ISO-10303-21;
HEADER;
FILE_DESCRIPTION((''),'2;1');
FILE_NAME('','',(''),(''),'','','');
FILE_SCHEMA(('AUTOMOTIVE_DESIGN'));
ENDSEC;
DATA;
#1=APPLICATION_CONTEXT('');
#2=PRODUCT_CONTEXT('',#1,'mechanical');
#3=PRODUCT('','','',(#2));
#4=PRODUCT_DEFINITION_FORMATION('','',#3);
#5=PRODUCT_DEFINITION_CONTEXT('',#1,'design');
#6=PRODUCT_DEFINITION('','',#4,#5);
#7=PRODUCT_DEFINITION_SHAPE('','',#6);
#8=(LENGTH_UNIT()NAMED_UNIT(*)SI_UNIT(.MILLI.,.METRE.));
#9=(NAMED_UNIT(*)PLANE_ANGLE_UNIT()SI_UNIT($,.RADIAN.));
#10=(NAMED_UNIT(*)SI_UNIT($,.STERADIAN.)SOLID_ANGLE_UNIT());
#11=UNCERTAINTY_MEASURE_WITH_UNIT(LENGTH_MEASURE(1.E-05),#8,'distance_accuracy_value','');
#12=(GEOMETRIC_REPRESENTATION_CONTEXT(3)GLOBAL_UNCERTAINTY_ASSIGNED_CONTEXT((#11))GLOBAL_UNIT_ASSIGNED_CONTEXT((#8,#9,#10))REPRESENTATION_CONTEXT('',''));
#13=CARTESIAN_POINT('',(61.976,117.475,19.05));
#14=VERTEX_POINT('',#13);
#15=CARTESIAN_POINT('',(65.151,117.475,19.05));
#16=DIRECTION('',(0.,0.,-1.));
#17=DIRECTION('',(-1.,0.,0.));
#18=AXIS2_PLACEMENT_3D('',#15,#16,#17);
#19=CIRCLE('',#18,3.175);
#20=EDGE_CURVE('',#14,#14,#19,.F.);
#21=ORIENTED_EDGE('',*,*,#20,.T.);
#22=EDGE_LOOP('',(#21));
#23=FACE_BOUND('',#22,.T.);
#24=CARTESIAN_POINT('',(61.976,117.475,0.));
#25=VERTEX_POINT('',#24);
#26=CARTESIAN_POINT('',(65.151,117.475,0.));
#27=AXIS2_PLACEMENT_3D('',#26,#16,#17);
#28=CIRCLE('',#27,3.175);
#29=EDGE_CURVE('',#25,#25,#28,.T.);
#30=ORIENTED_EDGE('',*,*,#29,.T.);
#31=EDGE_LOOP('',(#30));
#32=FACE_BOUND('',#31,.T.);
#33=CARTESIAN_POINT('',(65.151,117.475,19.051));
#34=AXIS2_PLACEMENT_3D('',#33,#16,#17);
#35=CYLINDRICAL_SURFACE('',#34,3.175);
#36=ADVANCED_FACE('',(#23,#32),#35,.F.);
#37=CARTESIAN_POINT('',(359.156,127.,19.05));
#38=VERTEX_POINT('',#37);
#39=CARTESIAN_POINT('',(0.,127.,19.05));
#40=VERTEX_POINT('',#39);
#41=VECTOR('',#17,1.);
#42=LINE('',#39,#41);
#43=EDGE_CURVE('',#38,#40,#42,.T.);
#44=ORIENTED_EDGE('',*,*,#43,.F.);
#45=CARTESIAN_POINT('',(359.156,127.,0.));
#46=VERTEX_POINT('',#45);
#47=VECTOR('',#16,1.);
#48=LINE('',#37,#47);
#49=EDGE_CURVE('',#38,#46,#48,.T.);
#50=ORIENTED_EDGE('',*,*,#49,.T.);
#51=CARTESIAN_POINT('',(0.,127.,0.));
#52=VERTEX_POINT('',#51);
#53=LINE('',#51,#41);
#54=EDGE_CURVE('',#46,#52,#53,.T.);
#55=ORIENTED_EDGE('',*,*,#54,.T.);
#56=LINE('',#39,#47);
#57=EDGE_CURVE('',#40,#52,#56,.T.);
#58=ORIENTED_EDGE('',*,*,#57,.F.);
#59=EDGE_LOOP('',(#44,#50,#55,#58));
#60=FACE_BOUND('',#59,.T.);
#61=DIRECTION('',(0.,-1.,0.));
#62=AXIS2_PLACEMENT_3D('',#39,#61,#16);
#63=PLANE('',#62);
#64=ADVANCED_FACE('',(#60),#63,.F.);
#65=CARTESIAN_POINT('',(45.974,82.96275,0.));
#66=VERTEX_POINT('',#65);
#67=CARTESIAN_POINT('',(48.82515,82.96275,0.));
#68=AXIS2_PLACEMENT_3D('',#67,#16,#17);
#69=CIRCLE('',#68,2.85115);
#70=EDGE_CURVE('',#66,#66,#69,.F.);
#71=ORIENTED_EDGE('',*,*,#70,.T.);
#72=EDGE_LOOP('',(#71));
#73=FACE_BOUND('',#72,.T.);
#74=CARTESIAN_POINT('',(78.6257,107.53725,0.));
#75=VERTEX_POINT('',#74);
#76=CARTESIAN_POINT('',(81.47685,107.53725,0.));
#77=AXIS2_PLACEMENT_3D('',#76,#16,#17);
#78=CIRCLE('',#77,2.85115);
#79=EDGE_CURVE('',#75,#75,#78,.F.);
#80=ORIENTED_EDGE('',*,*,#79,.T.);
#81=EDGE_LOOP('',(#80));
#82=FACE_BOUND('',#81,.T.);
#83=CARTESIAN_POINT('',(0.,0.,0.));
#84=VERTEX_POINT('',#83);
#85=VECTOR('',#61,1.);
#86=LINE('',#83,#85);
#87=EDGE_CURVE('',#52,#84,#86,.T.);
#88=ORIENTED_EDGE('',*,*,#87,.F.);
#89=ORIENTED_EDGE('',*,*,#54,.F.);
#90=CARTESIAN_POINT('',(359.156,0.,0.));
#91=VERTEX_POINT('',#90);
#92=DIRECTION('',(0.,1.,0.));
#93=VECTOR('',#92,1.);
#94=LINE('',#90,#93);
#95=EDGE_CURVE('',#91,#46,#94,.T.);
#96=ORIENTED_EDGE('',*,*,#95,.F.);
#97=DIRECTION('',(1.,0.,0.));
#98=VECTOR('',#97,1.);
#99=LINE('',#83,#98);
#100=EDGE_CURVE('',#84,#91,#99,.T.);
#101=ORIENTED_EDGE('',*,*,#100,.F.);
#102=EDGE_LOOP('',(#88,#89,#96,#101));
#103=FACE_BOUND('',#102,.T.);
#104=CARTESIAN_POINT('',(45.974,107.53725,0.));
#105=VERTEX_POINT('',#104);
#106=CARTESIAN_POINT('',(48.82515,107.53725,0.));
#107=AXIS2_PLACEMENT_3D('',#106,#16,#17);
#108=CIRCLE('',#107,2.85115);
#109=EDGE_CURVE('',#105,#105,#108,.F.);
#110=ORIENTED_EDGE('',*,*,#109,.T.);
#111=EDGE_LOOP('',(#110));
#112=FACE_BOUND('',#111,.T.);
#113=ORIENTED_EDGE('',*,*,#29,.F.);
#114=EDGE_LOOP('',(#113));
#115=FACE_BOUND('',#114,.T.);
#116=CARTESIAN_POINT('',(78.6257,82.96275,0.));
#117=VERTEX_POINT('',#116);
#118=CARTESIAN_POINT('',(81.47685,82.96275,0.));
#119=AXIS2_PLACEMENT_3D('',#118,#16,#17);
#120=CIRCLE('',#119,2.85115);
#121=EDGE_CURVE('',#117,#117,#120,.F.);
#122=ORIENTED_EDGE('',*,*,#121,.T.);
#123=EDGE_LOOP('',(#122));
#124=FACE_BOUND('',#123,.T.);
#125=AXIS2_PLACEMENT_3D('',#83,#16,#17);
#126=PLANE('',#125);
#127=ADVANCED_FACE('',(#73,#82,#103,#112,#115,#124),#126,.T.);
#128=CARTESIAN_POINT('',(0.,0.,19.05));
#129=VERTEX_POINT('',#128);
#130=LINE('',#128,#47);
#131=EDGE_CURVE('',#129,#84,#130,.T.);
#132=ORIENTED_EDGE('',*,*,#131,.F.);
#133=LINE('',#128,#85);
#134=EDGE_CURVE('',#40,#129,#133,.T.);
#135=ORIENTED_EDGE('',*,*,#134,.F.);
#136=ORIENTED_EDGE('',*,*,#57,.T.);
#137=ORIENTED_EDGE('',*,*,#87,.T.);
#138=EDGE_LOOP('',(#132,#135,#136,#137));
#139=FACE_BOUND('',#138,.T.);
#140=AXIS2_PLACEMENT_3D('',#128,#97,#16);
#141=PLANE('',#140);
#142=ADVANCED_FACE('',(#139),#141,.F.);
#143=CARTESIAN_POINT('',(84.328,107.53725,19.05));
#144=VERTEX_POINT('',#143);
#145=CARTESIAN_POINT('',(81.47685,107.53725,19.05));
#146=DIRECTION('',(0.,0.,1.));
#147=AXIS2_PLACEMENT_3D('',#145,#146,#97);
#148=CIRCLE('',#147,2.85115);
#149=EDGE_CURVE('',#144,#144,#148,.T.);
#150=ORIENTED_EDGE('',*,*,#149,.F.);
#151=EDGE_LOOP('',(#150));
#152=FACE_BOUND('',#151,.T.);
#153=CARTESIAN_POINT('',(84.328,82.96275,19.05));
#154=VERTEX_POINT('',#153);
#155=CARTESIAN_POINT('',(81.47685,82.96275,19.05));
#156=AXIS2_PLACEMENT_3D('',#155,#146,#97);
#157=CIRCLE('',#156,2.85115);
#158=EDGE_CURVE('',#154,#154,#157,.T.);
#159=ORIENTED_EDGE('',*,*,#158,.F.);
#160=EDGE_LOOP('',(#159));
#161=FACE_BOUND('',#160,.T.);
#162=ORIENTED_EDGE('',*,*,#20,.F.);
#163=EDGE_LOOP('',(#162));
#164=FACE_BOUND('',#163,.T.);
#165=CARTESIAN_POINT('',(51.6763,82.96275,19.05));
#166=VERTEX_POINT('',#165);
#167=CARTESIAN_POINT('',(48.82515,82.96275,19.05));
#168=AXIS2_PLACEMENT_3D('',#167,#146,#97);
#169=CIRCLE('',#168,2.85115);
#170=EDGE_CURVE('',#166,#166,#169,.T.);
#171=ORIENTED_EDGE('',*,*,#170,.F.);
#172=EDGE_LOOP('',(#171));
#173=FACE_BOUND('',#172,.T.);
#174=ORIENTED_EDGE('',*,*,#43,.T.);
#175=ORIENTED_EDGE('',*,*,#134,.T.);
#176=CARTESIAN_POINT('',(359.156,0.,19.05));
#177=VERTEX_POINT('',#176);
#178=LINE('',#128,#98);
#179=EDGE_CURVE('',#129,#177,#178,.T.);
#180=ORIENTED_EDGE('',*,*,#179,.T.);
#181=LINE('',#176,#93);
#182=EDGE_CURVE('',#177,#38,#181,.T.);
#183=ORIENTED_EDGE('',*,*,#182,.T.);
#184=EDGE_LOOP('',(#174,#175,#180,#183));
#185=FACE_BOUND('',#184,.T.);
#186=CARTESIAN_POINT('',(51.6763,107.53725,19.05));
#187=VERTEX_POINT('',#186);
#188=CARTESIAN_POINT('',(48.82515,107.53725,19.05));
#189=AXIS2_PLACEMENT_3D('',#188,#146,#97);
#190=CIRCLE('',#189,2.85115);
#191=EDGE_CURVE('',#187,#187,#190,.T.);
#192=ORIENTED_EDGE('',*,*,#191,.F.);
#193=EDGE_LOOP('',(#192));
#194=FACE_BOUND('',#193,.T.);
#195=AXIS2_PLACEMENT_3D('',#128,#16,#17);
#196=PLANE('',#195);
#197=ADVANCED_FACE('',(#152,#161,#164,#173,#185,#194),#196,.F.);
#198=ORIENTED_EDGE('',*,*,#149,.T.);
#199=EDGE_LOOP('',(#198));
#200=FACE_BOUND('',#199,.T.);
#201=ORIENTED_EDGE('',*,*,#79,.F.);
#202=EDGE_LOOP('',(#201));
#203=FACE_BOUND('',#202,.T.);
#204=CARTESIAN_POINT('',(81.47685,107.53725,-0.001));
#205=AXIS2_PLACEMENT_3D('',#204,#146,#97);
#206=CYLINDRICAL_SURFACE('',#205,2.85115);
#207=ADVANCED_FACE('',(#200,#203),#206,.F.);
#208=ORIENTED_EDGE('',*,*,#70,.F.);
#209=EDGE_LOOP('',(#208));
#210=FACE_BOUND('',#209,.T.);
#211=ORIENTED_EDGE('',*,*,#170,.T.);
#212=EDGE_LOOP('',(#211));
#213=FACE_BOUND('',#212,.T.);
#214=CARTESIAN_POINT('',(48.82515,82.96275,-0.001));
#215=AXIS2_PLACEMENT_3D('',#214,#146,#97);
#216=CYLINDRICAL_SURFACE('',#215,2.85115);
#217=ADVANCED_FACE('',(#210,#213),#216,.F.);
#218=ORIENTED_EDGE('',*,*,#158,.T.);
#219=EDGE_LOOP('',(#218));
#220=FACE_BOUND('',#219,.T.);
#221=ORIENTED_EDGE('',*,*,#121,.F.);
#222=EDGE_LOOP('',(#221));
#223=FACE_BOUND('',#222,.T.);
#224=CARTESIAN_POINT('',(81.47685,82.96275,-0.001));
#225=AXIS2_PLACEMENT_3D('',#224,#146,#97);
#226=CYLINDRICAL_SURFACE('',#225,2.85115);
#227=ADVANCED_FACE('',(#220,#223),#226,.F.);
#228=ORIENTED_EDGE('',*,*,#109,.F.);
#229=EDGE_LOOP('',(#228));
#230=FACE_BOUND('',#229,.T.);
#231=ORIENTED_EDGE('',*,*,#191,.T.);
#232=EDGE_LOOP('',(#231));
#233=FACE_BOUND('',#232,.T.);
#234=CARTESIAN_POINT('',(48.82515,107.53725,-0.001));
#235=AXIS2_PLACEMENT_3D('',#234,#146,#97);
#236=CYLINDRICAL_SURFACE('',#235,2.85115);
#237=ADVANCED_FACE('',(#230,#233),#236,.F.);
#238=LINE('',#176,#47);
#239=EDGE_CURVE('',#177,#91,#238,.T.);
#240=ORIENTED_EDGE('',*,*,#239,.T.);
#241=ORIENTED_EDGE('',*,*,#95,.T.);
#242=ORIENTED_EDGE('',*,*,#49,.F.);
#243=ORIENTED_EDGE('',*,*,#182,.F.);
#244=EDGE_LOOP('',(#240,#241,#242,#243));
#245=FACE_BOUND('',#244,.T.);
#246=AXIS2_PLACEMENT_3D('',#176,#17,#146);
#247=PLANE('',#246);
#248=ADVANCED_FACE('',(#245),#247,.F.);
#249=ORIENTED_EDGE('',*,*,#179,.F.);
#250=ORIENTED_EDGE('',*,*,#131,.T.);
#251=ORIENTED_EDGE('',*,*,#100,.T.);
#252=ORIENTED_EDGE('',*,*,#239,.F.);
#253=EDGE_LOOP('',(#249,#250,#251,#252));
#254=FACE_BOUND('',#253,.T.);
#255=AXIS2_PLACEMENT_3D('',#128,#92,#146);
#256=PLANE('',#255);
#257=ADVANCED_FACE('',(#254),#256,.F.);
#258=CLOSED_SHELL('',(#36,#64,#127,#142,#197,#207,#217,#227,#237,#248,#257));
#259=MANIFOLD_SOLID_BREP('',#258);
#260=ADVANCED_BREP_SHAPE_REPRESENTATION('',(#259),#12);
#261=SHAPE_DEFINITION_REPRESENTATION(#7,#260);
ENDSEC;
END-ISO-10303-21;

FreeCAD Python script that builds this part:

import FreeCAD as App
import Part
import Sketcher
Q = App.Units.Quantity

doc = App.newDocument("Part")
body = doc.addObject("PartDesign::Body", "Body")

# Sketch on XY plane
sketch1 = body.newObject("Sketcher::SketchObject", "Sketch")
sketch1.AttachmentSupport = (doc.getObject("XY_Plane"), [""])
sketch1.MapMode = "FlatFace"
sketch1.addGeometry(Part.LineSegment(App.Vector(0, 127, 0), App.Vector(0, 0, 0)), False)
sketch1.addGeometry(Part.LineSegment(App.Vector(0, 0, 0), App.Vector(359, 0, 0)), False)
sketch1.addGeometry(Part.LineSegment(App.Vector(359, 0, 0), App.Vector(359, 127, 0)), False)
sketch1.addGeometry(Part.LineSegment(App.Vector(359, 127, 0), App.Vector(0, 127, 0)), False)
sketch1.addConstraint(Sketcher.Constraint("Coincident", 0, 2, 1, 1))
sketch1.addConstraint(Sketcher.Constraint("Coincident", 1, 2, 2, 1))
sketch1.addConstraint(Sketcher.Constraint("Coincident", 2, 2, 3, 1))
sketch1.addConstraint(Sketcher.Constraint("Coincident", 3, 2, 0, 1))
sketch1.addConstraint(Sketcher.Constraint("Vertical", 0))
sketch1.addConstraint(Sketcher.Constraint("Horizontal", 1))
sketch1.addConstraint(Sketcher.Constraint("Vertical", 2))
sketch1.addConstraint(Sketcher.Constraint("Horizontal", 3))
sketch1.addConstraint(Sketcher.Constraint("Coincident", 0, 2, -1, 1))
sketch1.addConstraint(Sketcher.Constraint("DistanceY", 0, 2, 0, 1, Q("5 in")))
sketch1.addConstraint(Sketcher.Constraint("DistanceX", 1, 1, 1, 2, Q("14.14 in")))
pad1 = body.newObject("PartDesign::Pad", "Pad")
pad1.Profile = sketch1
pad1.Length = Q("0.75 in")

# Sketch on XY plane
sketch2 = body.newObject("Sketcher::SketchObject", "Sketch001")
sketch2.AttachmentSupport = (doc.getObject("XY_Plane"), [""])
sketch2.MapMode = "FlatFace"
sketch2.AttachmentOffset = App.Placement(App.Vector(0, 0, 0.75 * 25.4), App.Rotation())
sketch2.addGeometry(Part.Circle(App.Vector(48.8, 83, 0), App.Vector(0, 0, 1), 2.9), False)
sketch2.addConstraint(Sketcher.Constraint("Diameter", 0, Q("0.2245 in")))
sketch2.addConstraint(Sketcher.Constraint("DistanceX", -1, 1, 0, 3, Q("48.82515 mm")))
sketch2.addConstraint(Sketcher.Constraint("DistanceY", -1, 1, 0, 3, Q("82.96275 mm")))
pocket1 = body.newObject("PartDesign::Pocket", "Pocket")
pocket1.Profile = sketch2
pocket1.Type = "UpToFirst"

# Sketch on XY plane
sketch3 = body.newObject("Sketcher::SketchObject", "Sketch002")
sketch3.AttachmentSupport = (doc.getObject("XY_Plane"), [""])
sketch3.MapMode = "FlatFace"
sketch3.AttachmentOffset = App.Placement(App.Vector(0, 0, 0.75 * 25.4), App.Rotation())
sketch3.addGeometry(Part.Circle(App.Vector(48.8, 107.5, 0), App.Vector(0, 0, 1), 2.9), False)
sketch3.addConstraint(Sketcher.Constraint("Diameter", 0, Q("0.2245 in")))
sketch3.addConstraint(Sketcher.Constraint("DistanceX", -1, 1, 0, 3, Q("48.82515 mm")))
sketch3.addConstraint(Sketcher.Constraint("DistanceY", -1, 1, 0, 3, Q("107.53725 mm")))
pocket2 = body.newObject("PartDesign::Pocket", "Pocket001")
pocket2.Profile = sketch3
pocket2.Type = "UpToFirst"

# Sketch on XY plane
sketch4 = body.newObject("Sketcher::SketchObject", "Sketch003")
sketch4.AttachmentSupport = (doc.getObject("XY_Plane"), [""])
sketch4.MapMode = "FlatFace"
sketch4.AttachmentOffset = App.Placement(App.Vector(0, 0, 0.75 * 25.4), App.Rotation())
sketch4.addGeometry(Part.Circle(App.Vector(81.5, 107.5, 0), App.Vector(0, 0, 1), 2.9), False)
sketch4.addConstraint(Sketcher.Constraint("Diameter", 0, Q("0.2245 in")))
sketch4.addConstraint(Sketcher.Constraint("DistanceX", -1, 1, 0, 3, Q("81.47685 mm")))
sketch4.addConstraint(Sketcher.Constraint("DistanceY", -1, 1, 0, 3, Q("107.53725 mm")))
pocket3 = body.newObject("PartDesign::Pocket", "Pocket002")
pocket3.Profile = sketch4
pocket3.Type = "UpToFirst"

# Sketch on XY plane
sketch5 = body.newObject("Sketcher::SketchObject", "Sketch004")
sketch5.AttachmentSupport = (doc.getObject("XY_Plane"), [""])
sketch5.MapMode = "FlatFace"
sketch5.AttachmentOffset = App.Placement(App.Vector(0, 0, 0.75 * 25.4), App.Rotation())
sketch5.addGeometry(Part.Circle(App.Vector(81.5, 83, 0), App.Vector(0, 0, 1), 2.9), False)
sketch5.addConstraint(Sketcher.Constraint("Diameter", 0, Q("0.2245 in")))
sketch5.addConstraint(Sketcher.Constraint("DistanceX", -1, 1, 0, 3, Q("81.47685 mm")))
sketch5.addConstraint(Sketcher.Constraint("DistanceY", -1, 1, 0, 3, Q("82.96275 mm")))
pocket4 = body.newObject("PartDesign::Pocket", "Pocket003")
pocket4.Profile = sketch5
pocket4.Type = "UpToFirst"

# Sketch on XY plane
sketch6 = body.newObject("Sketcher::SketchObject", "Sketch005")
sketch6.AttachmentSupport = (doc.getObject("XY_Plane"), [""])
sketch6.MapMode = "FlatFace"
sketch6.addGeometry(Part.Circle(App.Vector(65.2, 117.5, 0), App.Vector(0, 0, 1), 3.2), False)
sketch6.addConstraint(Sketcher.Constraint("Diameter", 0, Q("0.25 in")))
sketch6.addConstraint(Sketcher.Constraint("DistanceX", -1, 1, 0, 3, Q("2.565 in")))
sketch6.addConstraint(Sketcher.Constraint("DistanceY", -1, 1, 0, 3, Q("4.625 in")))
pocket5 = body.newObject("PartDesign::Pocket", "Pocket004")
pocket5.Profile = sketch6
pocket5.Type = "UpToFirst"
pocket5.Reversed = True

doc.recompute()
